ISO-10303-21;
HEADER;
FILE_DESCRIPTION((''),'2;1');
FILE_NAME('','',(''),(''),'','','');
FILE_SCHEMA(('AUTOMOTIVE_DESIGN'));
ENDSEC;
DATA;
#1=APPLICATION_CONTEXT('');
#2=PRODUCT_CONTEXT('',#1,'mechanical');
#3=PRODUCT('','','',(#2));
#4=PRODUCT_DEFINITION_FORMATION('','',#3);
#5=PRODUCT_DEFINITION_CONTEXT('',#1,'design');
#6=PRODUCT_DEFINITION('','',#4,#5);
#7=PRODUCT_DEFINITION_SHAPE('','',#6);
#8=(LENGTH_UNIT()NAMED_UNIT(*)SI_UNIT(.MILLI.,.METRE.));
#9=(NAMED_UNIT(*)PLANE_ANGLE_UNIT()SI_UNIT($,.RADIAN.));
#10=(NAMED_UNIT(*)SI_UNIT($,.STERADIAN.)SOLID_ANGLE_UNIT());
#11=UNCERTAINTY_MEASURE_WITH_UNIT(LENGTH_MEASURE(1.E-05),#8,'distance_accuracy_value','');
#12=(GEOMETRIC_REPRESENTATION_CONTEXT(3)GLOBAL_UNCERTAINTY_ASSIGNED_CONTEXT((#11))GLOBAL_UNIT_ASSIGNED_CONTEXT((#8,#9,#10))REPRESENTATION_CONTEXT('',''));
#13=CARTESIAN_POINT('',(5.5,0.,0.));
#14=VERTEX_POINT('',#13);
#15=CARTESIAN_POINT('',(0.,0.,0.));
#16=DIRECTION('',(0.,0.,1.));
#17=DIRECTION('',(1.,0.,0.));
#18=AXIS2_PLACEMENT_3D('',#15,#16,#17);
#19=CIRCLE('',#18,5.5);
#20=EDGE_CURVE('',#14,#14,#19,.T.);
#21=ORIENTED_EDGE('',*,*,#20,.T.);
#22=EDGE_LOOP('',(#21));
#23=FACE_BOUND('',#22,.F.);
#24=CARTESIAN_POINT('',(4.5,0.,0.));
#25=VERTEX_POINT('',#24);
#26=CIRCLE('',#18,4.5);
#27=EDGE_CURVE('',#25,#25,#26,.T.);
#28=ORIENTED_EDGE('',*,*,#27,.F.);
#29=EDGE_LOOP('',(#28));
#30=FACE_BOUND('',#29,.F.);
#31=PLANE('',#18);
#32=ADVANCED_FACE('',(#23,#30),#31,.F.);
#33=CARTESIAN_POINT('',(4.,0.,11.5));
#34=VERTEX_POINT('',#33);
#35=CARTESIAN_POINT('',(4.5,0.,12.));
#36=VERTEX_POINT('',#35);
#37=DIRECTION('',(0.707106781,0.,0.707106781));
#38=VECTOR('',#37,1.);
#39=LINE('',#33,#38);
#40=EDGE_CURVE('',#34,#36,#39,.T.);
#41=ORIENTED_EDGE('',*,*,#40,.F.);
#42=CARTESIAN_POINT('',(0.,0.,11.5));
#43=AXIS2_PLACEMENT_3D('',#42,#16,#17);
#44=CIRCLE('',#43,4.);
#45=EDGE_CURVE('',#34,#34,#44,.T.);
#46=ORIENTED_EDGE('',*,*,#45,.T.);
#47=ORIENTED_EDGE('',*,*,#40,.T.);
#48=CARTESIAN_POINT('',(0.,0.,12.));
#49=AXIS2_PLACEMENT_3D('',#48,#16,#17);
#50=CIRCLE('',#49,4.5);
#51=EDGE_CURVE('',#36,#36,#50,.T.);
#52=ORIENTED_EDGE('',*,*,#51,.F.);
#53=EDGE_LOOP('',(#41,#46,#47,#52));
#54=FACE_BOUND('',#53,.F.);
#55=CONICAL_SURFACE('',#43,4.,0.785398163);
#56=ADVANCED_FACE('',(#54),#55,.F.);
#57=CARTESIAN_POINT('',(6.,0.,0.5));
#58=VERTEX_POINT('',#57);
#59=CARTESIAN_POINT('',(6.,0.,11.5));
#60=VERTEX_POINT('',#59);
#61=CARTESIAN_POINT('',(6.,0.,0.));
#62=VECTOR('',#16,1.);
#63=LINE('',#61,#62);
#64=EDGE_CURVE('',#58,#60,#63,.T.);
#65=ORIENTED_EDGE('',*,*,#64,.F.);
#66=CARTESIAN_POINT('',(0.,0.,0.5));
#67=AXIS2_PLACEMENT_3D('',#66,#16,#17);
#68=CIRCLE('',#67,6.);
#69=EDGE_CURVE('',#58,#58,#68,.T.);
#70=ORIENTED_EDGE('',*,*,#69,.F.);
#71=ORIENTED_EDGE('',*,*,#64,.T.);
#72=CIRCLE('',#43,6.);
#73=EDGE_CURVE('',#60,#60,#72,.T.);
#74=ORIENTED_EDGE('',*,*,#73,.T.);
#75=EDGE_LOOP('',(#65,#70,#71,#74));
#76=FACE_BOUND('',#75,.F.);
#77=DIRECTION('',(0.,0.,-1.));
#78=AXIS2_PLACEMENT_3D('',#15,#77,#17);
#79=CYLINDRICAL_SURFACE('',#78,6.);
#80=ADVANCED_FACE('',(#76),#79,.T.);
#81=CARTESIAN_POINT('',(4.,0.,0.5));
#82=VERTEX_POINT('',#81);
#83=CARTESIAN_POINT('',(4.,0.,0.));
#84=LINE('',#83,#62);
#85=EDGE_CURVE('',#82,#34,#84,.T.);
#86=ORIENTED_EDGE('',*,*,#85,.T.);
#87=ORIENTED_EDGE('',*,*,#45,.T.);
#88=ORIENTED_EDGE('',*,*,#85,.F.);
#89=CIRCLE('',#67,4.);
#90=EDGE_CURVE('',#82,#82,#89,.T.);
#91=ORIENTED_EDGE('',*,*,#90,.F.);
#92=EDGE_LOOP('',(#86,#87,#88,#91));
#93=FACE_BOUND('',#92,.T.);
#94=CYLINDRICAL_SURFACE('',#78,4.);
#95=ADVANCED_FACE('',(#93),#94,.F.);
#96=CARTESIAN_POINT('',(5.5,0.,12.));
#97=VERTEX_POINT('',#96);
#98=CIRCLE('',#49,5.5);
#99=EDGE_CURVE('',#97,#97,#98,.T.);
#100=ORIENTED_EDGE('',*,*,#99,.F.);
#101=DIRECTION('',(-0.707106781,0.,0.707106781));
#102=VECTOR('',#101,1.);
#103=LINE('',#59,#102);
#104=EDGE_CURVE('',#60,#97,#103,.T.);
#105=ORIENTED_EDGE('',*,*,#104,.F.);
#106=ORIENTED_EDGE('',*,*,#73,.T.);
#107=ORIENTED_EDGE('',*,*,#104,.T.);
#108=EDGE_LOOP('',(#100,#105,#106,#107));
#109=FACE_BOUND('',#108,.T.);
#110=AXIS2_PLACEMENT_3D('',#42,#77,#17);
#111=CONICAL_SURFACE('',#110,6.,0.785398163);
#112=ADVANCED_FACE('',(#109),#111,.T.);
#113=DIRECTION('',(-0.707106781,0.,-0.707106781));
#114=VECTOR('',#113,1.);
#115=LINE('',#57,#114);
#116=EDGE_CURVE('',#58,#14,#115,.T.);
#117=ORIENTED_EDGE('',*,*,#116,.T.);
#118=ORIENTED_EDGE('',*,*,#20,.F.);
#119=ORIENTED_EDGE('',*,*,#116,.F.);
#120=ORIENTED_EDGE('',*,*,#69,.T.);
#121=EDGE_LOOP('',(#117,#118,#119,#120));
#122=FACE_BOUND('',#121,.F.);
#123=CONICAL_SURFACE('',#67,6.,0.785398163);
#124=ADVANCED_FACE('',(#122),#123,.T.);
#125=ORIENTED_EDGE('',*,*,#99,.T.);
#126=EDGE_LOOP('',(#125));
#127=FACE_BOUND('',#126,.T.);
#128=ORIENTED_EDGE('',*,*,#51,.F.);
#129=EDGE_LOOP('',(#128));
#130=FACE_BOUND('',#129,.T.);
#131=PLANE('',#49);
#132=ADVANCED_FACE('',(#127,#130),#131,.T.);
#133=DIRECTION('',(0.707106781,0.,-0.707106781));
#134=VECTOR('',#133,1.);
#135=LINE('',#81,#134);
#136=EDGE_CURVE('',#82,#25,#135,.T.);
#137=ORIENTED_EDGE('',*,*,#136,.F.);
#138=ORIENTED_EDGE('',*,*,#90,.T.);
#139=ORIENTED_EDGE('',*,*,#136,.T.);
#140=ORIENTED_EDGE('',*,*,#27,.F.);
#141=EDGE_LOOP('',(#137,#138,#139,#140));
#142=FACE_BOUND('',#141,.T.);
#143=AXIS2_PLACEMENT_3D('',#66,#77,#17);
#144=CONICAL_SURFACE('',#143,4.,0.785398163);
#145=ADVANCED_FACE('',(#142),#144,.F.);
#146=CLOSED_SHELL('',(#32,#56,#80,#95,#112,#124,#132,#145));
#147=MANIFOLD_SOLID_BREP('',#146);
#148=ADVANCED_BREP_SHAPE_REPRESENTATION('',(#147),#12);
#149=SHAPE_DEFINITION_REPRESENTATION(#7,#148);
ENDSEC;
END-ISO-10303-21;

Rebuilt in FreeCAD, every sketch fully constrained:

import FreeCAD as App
import Part
import Sketcher


def edges_at(feature, points):
    """Names of the edges that pass closest to the given points."""
    edges = feature.Shape.Edges
    near = lambda p: min(range(len(edges)), key=lambda i: edges[i].distToShape(Part.Vertex(*p))[0])
    return sorted({f"Edge{near(p) + 1}" for p in points})

doc = App.newDocument("Part")
body = doc.addObject("PartDesign::Body", "Body")

# Sketch on XY plane
sketch1 = body.newObject("Sketcher::SketchObject", "Sketch")
sketch1.AttachmentSupport = (doc.getObject("XY_Plane"), [""])
sketch1.MapMode = "FlatFace"
sketch1.addGeometry([
    Part.Circle(App.Vector(0, 0, 0), App.Vector(0, 0, 1), 6),
    Part.Circle(App.Vector(0, 0, 0), App.Vector(0, 0, 1), 4),
], False)
sketch1.addConstraint([
    Sketcher.Constraint("Coincident", 0, 3, -1, 1),
    Sketcher.Constraint("Coincident", 1, 3, -1, 1),
    Sketcher.Constraint("Diameter", 0, 12.0),
    Sketcher.Constraint("Diameter", 1, 8.0),
])
pad1 = body.newObject("PartDesign::Pad", "Pad")
pad1.Profile = sketch1
pad1.Length = 12
doc.recompute()

chamfer = body.newObject("PartDesign::Chamfer", "Chamfer")
chamfer.Base = (pad1, edges_at(pad1, [
    (-6, 0, 12),
    (-4, 0, 12),
    (-6, 0, 0),
    (-4, 0, 0),
]))
chamfer.Size = 0.5

doc.recompute()
